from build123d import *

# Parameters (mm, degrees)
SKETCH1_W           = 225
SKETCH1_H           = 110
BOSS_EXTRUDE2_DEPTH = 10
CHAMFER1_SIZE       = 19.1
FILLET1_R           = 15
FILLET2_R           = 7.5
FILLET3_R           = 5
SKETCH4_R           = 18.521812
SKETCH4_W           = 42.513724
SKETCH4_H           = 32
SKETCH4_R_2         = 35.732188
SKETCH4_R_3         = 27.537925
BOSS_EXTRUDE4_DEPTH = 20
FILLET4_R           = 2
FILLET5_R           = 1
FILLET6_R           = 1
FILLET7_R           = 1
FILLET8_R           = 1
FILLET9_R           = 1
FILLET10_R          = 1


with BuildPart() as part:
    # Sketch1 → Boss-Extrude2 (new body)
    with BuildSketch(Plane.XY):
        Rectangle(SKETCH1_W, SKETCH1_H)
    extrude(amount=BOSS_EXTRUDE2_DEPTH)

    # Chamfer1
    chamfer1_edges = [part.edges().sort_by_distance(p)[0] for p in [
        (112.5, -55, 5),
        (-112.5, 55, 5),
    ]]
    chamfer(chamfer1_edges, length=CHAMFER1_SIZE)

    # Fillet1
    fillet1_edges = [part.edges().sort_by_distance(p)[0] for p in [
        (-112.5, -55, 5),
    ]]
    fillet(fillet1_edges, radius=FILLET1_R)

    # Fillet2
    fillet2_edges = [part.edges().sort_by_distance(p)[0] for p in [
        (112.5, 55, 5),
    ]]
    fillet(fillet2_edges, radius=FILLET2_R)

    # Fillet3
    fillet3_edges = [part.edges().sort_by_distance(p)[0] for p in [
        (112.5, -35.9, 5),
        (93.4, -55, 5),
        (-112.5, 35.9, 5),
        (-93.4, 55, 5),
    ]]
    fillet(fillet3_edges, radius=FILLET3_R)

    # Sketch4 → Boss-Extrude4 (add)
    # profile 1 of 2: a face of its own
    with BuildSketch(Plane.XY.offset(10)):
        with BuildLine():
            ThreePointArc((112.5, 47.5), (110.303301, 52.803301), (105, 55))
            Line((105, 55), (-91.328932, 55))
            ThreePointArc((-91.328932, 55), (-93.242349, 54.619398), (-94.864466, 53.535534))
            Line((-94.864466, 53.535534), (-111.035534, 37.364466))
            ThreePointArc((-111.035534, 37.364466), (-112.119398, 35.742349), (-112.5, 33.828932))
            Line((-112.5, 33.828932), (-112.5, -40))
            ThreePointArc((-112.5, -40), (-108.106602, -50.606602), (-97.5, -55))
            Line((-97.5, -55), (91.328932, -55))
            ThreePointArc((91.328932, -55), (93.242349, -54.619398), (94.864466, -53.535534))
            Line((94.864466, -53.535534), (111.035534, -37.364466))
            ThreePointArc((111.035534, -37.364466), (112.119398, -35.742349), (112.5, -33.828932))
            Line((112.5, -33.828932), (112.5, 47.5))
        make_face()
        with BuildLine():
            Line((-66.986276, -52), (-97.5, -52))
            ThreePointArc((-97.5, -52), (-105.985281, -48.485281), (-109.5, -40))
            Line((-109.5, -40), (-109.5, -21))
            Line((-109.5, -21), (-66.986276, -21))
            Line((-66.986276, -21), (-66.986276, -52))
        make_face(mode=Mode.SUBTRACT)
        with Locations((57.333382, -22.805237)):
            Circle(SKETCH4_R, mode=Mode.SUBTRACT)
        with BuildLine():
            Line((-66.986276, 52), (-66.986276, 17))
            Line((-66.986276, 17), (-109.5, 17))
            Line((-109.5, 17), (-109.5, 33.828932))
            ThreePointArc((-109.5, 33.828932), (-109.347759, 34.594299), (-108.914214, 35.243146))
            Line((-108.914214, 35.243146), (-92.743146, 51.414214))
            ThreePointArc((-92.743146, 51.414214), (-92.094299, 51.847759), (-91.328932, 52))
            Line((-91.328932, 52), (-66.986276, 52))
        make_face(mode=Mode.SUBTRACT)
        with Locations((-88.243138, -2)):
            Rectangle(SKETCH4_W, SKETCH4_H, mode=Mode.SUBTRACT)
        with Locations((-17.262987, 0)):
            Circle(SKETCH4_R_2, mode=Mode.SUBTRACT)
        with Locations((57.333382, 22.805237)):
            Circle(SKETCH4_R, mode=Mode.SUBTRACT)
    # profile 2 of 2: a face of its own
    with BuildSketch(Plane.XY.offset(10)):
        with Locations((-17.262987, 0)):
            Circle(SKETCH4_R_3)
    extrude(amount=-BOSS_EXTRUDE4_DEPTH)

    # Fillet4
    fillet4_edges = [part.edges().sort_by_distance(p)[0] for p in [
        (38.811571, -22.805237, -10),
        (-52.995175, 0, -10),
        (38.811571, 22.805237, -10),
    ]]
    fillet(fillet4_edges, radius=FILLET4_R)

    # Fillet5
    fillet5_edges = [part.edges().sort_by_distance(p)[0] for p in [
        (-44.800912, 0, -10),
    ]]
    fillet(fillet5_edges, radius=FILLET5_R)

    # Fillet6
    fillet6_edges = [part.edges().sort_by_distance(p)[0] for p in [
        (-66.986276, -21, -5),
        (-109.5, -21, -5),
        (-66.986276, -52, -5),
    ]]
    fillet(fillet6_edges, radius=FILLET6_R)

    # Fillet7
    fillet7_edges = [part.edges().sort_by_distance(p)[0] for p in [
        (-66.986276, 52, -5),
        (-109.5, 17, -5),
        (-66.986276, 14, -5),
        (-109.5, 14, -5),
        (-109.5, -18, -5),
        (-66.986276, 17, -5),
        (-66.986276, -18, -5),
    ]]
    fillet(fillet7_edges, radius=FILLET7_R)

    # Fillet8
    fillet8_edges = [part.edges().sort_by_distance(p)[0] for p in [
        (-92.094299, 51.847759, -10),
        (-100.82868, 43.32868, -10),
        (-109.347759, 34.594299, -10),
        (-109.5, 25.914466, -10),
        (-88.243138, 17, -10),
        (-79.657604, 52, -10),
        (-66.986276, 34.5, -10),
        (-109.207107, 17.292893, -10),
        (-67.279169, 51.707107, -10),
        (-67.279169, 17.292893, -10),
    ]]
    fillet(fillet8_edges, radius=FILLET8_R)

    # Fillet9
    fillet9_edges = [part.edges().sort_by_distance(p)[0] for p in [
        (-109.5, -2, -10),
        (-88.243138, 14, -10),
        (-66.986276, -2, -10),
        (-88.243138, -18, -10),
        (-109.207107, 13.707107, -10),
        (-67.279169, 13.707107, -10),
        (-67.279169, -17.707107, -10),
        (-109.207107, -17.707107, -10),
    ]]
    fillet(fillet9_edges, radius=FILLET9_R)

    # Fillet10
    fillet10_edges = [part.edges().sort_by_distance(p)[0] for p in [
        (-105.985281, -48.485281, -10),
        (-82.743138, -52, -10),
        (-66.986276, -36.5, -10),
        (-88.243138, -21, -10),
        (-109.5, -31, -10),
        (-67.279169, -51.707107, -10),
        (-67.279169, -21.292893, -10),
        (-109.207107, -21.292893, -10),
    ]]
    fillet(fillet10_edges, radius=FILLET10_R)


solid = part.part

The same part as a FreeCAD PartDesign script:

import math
import FreeCAD as App
import Part
import Sketcher
from FreeCAD import Vector
Q = App.Units.Quantity


def edges_at(feature, points):
    """Names of the edges that pass closest to the given points."""
    edges = feature.Shape.Edges
    near = lambda p: min(range(len(edges)), key=lambda i: edges[i].distToShape(Part.Vertex(*p))[0])
    return sorted({f"Edge{near(p) + 1}" for p in points})


def add_polygon(sketch, points):
    """Adds a closed chain of lines whose ends are joined by coincident constraints."""
    first, n = sketch.GeometryCount, len(points)
    for a, b in zip(points, points[1:] + points[:1]):
        sketch.addGeometry(Part.LineSegment(App.Vector(*a, 0), App.Vector(*b, 0)), False)
    for i in range(n):
        sketch.addConstraint(Sketcher.Constraint("Coincident", first + i, 2, first + (i + 1) % n, 1))

doc = App.newDocument("Part")
body = doc.addObject("PartDesign::Body", "Body")

sketch1 = body.newObject("Sketcher::SketchObject", "Sketch")
sketch1.AttachmentSupport = (doc.getObject("XY_Plane"), [""])
sketch1.MapMode = "FlatFace"
add_polygon(sketch1, [(-112, 55), (-112, -55), (112, -55), (112, 55)])
sketch1.addConstraint(Sketcher.Constraint("Vertical", 0))
sketch1.addConstraint(Sketcher.Constraint("Horizontal", 1))
sketch1.addConstraint(Sketcher.Constraint("Vertical", 2))
sketch1.addConstraint(Sketcher.Constraint("Horizontal", 3))
sketch1.addConstraint(Sketcher.Constraint("Symmetric", 0, 2, 2, 2, -1, 1))
sketch1.addConstraint(Sketcher.Constraint("DistanceX", 1, 1, 1, 2, 225.0))
sketch1.addConstraint(Sketcher.Constraint("DistanceY", 0, 2, 0, 1, 110.0))
pad1 = body.newObject("PartDesign::Pad", "Pad")
pad1.Profile = sketch1
pad1.Length = 10
doc.recompute()

chamfer = body.newObject("PartDesign::Chamfer", "Chamfer")
chamfer.Base = (pad1, edges_at(pad1, [(112.5, -55, 5), (-112.5, 55, 5)]))
chamfer.Size = 19.1
doc.recompute()

fillet = body.newObject("PartDesign::Fillet", "Fillet")
fillet.Base = (chamfer, edges_at(chamfer, [(-112.5, -55, 5)]))
fillet.Radius = 15
doc.recompute()

fillet2 = body.newObject("PartDesign::Fillet", "Fillet001")
fillet2.Base = (fillet, edges_at(fillet, [(112.5, 55, 5)]))
fillet2.Radius = 7.5
doc.recompute()

fillet3 = body.newObject("PartDesign::Fillet", "Fillet002")
fillet3.Base = (fillet2, edges_at(fillet2, [
    (112.5, -35.9, 5),
    (93.4, -55, 5),
    (-112.5, 35.9, 5),
    (-93.4, 55, 5),
]))
fillet3.Radius = 5

sketch2 = body.newObject("Sketcher::SketchObject", "Sketch001")
sketch2.AttachmentSupport = (doc.getObject("XY_Plane"), [""])
sketch2.MapMode = "FlatFace"
sketch2.AttachmentOffset = App.Placement(Vector(0, 0, 10), App.Rotation())
sketch2.addGeometry(Part.ArcOfCircle(Part.Circle(Vector(105, 47.5, 0), Vector(0, 0, 1), 7.5), math.radians(0), math.radians(90)), False)
sketch2.addGeometry(Part.LineSegment(Vector(105, 55, 0), Vector(-91.3, 55, 0)), False)
sketch2.addGeometry(Part.ArcOfCircle(Part.Circle(Vector(-91.3, 50, 0), Vector(0, 0, 1), 5), math.radians(90), math.radians(135)), False)
sketch2.addGeometry(Part.LineSegment(Vector(-94.9, 53.5, 0), Vector(-111, 37.4, 0)), False)
sketch2.addGeometry(Part.ArcOfCircle(Part.Circle(Vector(-107.5, 33.8, 0), Vector(0, 0, 1), 5), math.radians(135), math.radians(180)), False)
sketch2.addGeometry(Part.LineSegment(Vector(-112.5, 33.8, 0), Vector(-112.5, -40, 0)), False)
sketch2.addGeometry(Part.ArcOfCircle(Part.Circle(Vector(-97.5, -40, 0), Vector(0, 0, 1), 15), math.radians(180), math.radians(270)), False)
sketch2.addGeometry(Part.LineSegment(Vector(-97.5, -55, 0), Vector(91.3, -55, 0)), False)
sketch2.addGeometry(Part.ArcOfCircle(Part.Circle(Vector(91.3, -50, 0), Vector(0, 0, 1), 5), math.radians(-90), math.radians(-45)), False)
sketch2.addGeometry(Part.LineSegment(Vector(94.9, -53.5, 0), Vector(111, -37.4, 0)), False)
sketch2.addGeometry(Part.ArcOfCircle(Part.Circle(Vector(107.5, -33.8, 0), Vector(0, 0, 1), 5), math.radians(-45), math.radians(0)), False)
sketch2.addGeometry(Part.LineSegment(Vector(112.5, -33.8, 0), Vector(112.5, 47.5, 0)), False)
sketch2.addGeometry(Part.LineSegment(Vector(-67, -21, 0), Vector(-67, -52, 0)), False)
sketch2.addGeometry(Part.LineSegment(Vector(-67, -52, 0), Vector(-97.5, -52, 0)), False)
sketch2.addGeometry(Part.ArcOfCircle(Part.Circle(Vector(-97.5, -40, 0), Vector(0, 0, 1), 12), math.radians(-180), math.radians(-90)), False)
sketch2.addGeometry(Part.LineSegment(Vector(-109.5, -40, 0), Vector(-109.5, -21, 0)), False)
sketch2.addGeometry(Part.LineSegment(Vector(-109.5, -21, 0), Vector(-67, -21, 0)), False)
add_polygon(sketch2, [(-67, -18), (-109.5, -18), (-109.5, 14), (-67, 14)])
sketch2.addGeometry(Part.Circle(Vector(57.3, -22.8, 0), Vector(0, 0, 1), 18.5), False)
sketch2.addGeometry(Part.Circle(Vector(-17.3, 0, 0), Vector(0, 0, 1), 35.7), False)
sketch2.addGeometry(Part.LineSegment(Vector(-91.3, 52, 0), Vector(-67, 52, 0)), False)
sketch2.addGeometry(Part.LineSegment(Vector(-67, 52, 0), Vector(-67, 17, 0)), False)
sketch2.addGeometry(Part.LineSegment(Vector(-67, 17, 0), Vector(-109.5, 17, 0)), False)
sketch2.addGeometry(Part.LineSegment(Vector(-109.5, 17, 0), Vector(-109.5, 33.8, 0)), False)
sketch2.addGeometry(Part.ArcOfCircle(Part.Circle(Vector(-107.5, 33.8, 0), Vector(0, 0, 1), 2), math.radians(135), math.radians(180)), False)
sketch2.addGeometry(Part.LineSegment(Vector(-108.9, 35.2, 0), Vector(-92.7, 51.4, 0)), False)
sketch2.addGeometry(Part.ArcOfCircle(Part.Circle(Vector(-91.3, 50, 0), Vector(0, 0, 1), 2), math.radians(90), math.radians(135)), False)
sketch2.addGeometry(Part.Circle(Vector(57.3, 22.8, 0), Vector(0, 0, 1), 18.5), False)
sketch2.addGeometry(Part.Circle(Vector(-17.3, 0, 0), Vector(0, 0, 1), 27.5), False)
sketch2.addConstraint(Sketcher.Constraint("Tangent", 0, 2, 1, 1))
sketch2.addConstraint(Sketcher.Constraint("Tangent", 1, 2, 2, 1))
sketch2.addConstraint(Sketcher.Constraint("Tangent", 2, 2, 3, 1))
sketch2.addConstraint(Sketcher.Constraint("Tangent", 3, 2, 4, 1))
sketch2.addConstraint(Sketcher.Constraint("Tangent", 4, 2, 5, 1))
sketch2.addConstraint(Sketcher.Constraint("Tangent", 5, 2, 6, 1))
sketch2.addConstraint(Sketcher.Constraint("Tangent", 6, 2, 7, 1))
sketch2.addConstraint(Sketcher.Constraint("Tangent", 7, 2, 8, 1))
sketch2.addConstraint(Sketcher.Constraint("Tangent", 8, 2, 9, 1))
sketch2.addConstraint(Sketcher.Constraint("Tangent", 9, 2, 10, 1))
sketch2.addConstraint(Sketcher.Constraint("Tangent", 10, 2, 11, 1))
sketch2.addConstraint(Sketcher.Constraint("Tangent", 11, 2, 0, 1))
sketch2.addConstraint(Sketcher.Constraint("Coincident", 12, 2, 13, 1))
sketch2.addConstraint(Sketcher.Constraint("Tangent", 13, 2, 14, 2))
sketch2.addConstraint(Sketcher.Constraint("Tangent", 14, 1, 15, 1))
sketch2.addConstraint(Sketcher.Constraint("Coincident", 15, 2, 16, 1))
sketch2.addConstraint(Sketcher.Constraint("Coincident", 16, 2, 12, 1))
sketch2.addConstraint(Sketcher.Constraint("Coincident", 23, 2, 24, 1))
sketch2.addConstraint(Sketcher.Constraint("Coincident", 24, 2, 25, 1))
sketch2.addConstraint(Sketcher.Constraint("Coincident", 25, 2, 26, 1))
sketch2.addConstraint(Sketcher.Constraint("Tangent", 26, 2, 27, 2))
sketch2.addConstraint(Sketcher.Constraint("Tangent", 27, 1, 28, 1))
sketch2.addConstraint(Sketcher.Constraint("Tangent", 28, 2, 29, 2))
sketch2.addConstraint(Sketcher.Constraint("Tangent", 29, 1, 23, 1))
sketch2.addConstraint(Sketcher.Constraint("Horizontal", 1))
sketch2.addConstraint(Sketcher.Constraint("Vertical", 5))
sketch2.addConstraint(Sketcher.Constraint("Horizontal", 7))
sketch2.addConstraint(Sketcher.Constraint("Vertical", 11))
sketch2.addConstraint(Sketcher.Constraint("Vertical", 12))
sketch2.addConstraint(Sketcher.Constraint("Horizontal", 13))
sketch2.addConstraint(Sketcher.Constraint("Vertical", 15))
sketch2.addConstraint(Sketcher.Constraint("Horizontal", 16))
sketch2.addConstraint(Sketcher.Constraint("Horizontal", 17))
sketch2.addConstraint(Sketcher.Constraint("Vertical", 18))
sketch2.addConstraint(Sketcher.Constraint("Horizontal", 19))
sketch2.addConstraint(Sketcher.Constraint("Vertical", 20))
sketch2.addConstraint(Sketcher.Constraint("Horizontal", 23))
sketch2.addConstraint(Sketcher.Constraint("Vertical", 24))
sketch2.addConstraint(Sketcher.Constraint("Horizontal", 25))
sketch2.addConstraint(Sketcher.Constraint("Vertical", 26))
sketch2.addConstraint(Sketcher.Constraint("Coincident", 14, 3, 6, 3))
sketch2.addConstraint(Sketcher.Constraint("Coincident", 27, 3, 4, 3))
sketch2.addConstraint(Sketcher.Constraint("Coincident", 29, 3, 2, 3))
sketch2.addConstraint(Sketcher.Constraint("Coincident", 31, 3, 22, 3))
sketch2.addConstraint(Sketcher.Constraint("Equal", 2, 4))
sketch2.addConstraint(Sketcher.Constraint("Equal", 4, 8))
sketch2.addConstraint(Sketcher.Constraint("Equal", 8, 10))
sketch2.addConstraint(Sketcher.Constraint("Equal", 27, 29))
sketch2.addConstraint(Sketcher.Constraint("Equal", 21, 30))
sketch2.addConstraint(Sketcher.Constraint("Symmetric", 2, 3, 8, 3, -1, 1))
sketch2.addConstraint(Sketcher.Constraint("Symmetric", 4, 3, 10, 3, -1, 1))
sketch2.addConstraint(Sketcher.Constraint("Symmetric", 21, 3, 30, 3, -1))
sketch2.addConstraint(Sketcher.Constraint("Symmetric", 12, 2, 23, 2, -1))
sketch2.addConstraint(Sketcher.Constraint("PointOnObject", 22, 3, -1))
sketch2.addConstraint(Sketcher.Constraint("Vertical", 15, 2, 17, 2))
sketch2.addConstraint(Sketcher.Constraint("Vertical", 16, 2, 19, 2))
sketch2.addConstraint(Sketcher.Constraint("Radius", 6, 14.999999))
sketch2.addConstraint(Sketcher.Constraint("Radius", 14, 12.000001))
sketch2.addConstraint(Sketcher.Constraint("Radius", 0, 7.5))
sketch2.addConstraint(Sketcher.Constraint("DistanceY", 12, 2, 12, 1, 31.0))
sketch2.addConstraint(Sketcher.Constraint("DistanceY", 18, 1, 18, 2, 32.0))
sketch2.addConstraint(Sketcher.Constraint("DistanceY", 24, 2, 24, 1, 35.0))
sketch2.addConstraint(Sketcher.Constraint("Angle", 3, Q("-135 deg")))
sketch2.addConstraint(Sketcher.Constraint("DistanceX", -1, 1, 0, 3, 105.0))
sketch2.addConstraint(Sketcher.Constraint("DistanceY", 6, 3, -1, 1, 40.000001))
sketch2.addConstraint(Sketcher.Constraint("DistanceY", 17, 2, -1, 1, 18.0))
sketch2.addConstraint(Sketcher.Constraint("DistanceX", 4, 3, 6, 3, 10.000001))
sketch2.addConstraint(Sketcher.Constraint("Diameter", 31, 55.07585))
sketch2.addConstraint(Sketcher.Constraint("Diameter", 21, 37.043624))
sketch2.addConstraint(Sketcher.Constraint("Diameter", 22, 71.464376))
sketch2.addConstraint(Sketcher.Constraint("DistanceX", 1, 2, 1, 1, 196.328932))
sketch2.addConstraint(Sketcher.Constraint("DistanceX", 13, 2, 13, 1, 30.513724))
sketch2.addConstraint(Sketcher.Constraint("DistanceX", 21, 3, 8, 3, 33.995551))
sketch2.addConstraint(Sketcher.Constraint("DistanceY", 14, 3, 21, 3, 17.194762))
sketch2.addConstraint(Sketcher.Constraint("DistanceX", 22, 3, 21, 3, 74.596369))
pad2 = body.newObject("PartDesign::Pad", "Pad001")
pad2.Profile = sketch2
pad2.Length = 20
pad2.Reversed = True
doc.recompute()

fillet4 = body.newObject("PartDesign::Fillet", "Fillet003")
fillet4.Base = (pad2, edges_at(pad2, [(38.812, -22.805, -10), (-52.995, 0, -10), (38.812, 22.805, -10)]))
fillet4.Radius = 2
doc.recompute()

fillet5 = body.newObject("PartDesign::Fillet", "Fillet004")
fillet5.Base = (fillet4, edges_at(fillet4, [(-44.801, 0, -10)]))
fillet5.Radius = 1
doc.recompute()

fillet6 = body.newObject("PartDesign::Fillet", "Fillet005")
fillet6.Base = (fillet5, edges_at(fillet5, [(-66.986, -21, -5), (-109.5, -21, -5), (-66.986, -52, -5)]))
fillet6.Radius = 1
doc.recompute()

fillet7 = body.newObject("PartDesign::Fillet", "Fillet006")
fillet7.Base = (fillet6, edges_at(fillet6, [
    (-66.986, 52, -5),
    (-109.5, 17, -5),
    (-66.986, 14, -5),
    (-109.5, 14, -5),
    (-109.5, -18, -5),
    (-66.986, 17, -5),
    (-66.986, -18, -5),
]))
fillet7.Radius = 1
doc.recompute()

fillet8 = body.newObject("PartDesign::Fillet", "Fillet007")
fillet8.Base = (fillet7, edges_at(fillet7, [
    (-92.094, 51.848, -10),
    (-100.829, 43.329, -10),
    (-109.348, 34.594, -10),
    (-109.5, 25.914, -10),
    (-88.243, 17, -10),
    (-79.658, 52, -10),
    (-66.986, 34.5, -10),
    (-109.207, 17.293, -10),
    (-67.279, 51.707, -10),
    (-67.279, 17.293, -10),
]))
fillet8.Radius = 1
doc.recompute()

fillet9 = body.newObject("PartDesign::Fillet", "Fillet008")
fillet9.Base = (fillet8, edges_at(fillet8, [
    (-109.5, -2, -10),
    (-88.243, 14, -10),
    (-66.986, -2, -10),
    (-88.243, -18, -10),
    (-109.207, 13.707, -10),
    (-67.279, 13.707, -10),
    (-67.279, -17.707, -10),
    (-109.207, -17.707, -10),
]))
fillet9.Radius = 1
doc.recompute()

fillet10 = body.newObject("PartDesign::Fillet", "Fillet009")
fillet10.Base = (fillet9, edges_at(fillet9, [
    (-105.985, -48.485, -10),
    (-82.743, -52, -10),
    (-66.986, -36.5, -10),
    (-88.243, -21, -10),
    (-109.5, -31, -10),
    (-67.279, -51.707, -10),
    (-67.279, -21.293, -10),
    (-109.207, -21.293, -10),
]))
fillet10.Radius = 1

doc.recompute()
